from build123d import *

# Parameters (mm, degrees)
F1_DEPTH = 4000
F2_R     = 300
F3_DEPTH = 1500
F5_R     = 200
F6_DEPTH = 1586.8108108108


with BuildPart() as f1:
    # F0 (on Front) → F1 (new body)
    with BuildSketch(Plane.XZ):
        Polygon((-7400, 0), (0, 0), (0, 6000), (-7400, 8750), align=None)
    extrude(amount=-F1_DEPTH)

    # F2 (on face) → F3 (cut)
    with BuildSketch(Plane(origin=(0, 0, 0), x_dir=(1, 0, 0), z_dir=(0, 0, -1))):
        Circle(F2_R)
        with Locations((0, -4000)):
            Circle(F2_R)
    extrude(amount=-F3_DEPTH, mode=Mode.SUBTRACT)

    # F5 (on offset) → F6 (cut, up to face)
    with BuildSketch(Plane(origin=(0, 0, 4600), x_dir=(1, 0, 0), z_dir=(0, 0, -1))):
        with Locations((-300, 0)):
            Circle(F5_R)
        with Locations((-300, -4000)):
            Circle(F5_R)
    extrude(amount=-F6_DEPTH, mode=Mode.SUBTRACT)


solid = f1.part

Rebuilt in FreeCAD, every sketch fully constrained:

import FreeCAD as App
import Part
import Sketcher
from FreeCAD import Vector
Q = App.Units.Quantity

doc = App.newDocument("Part")
body = doc.addObject("PartDesign::Body", "Body")

# Sketch on XZ plane
sketch1 = body.newObject("Sketcher::SketchObject", "Sketch")
sketch1.AttachmentSupport = (doc.getObject("XZ_Plane"), [""])
sketch1.MapMode = "FlatFace"
sketch1.addGeometry([
    Part.LineSegment(Vector(-7400, 0, 0), Vector(0, 0, 0)),
    Part.LineSegment(Vector(0, 0, 0), Vector(0, 6000, 0)),
    Part.LineSegment(Vector(0, 6000, 0), Vector(-7400, 8750, 0)),
    Part.LineSegment(Vector(-7400, 8750, 0), Vector(-7400, 0, 0)),
], False)
sketch1.addConstraint([
    Sketcher.Constraint("Coincident", 0, 2, 1, 1),
    Sketcher.Constraint("Coincident", 1, 2, 2, 1),
    Sketcher.Constraint("Coincident", 2, 2, 3, 1),
    Sketcher.Constraint("Coincident", 3, 2, 0, 1),
    Sketcher.Constraint("Horizontal", 0),
    Sketcher.Constraint("Vertical", 1),
    Sketcher.Constraint("Vertical", 3),
    Sketcher.Constraint("Coincident", 0, 2, -1, 1),
    Sketcher.Constraint("DistanceX", 0, 1, 0, 2, Q("7400 mm")),
    Sketcher.Constraint("DistanceY", 1, 1, 1, 2, Q("6000 mm")),
    Sketcher.Constraint("DistanceY", 3, 2, 3, 1, Q("8750 mm")),
])
pad1 = body.newObject("PartDesign::Pad", "Pad")
pad1.Profile = sketch1
pad1.Length = 4000
pad1.Reversed = True

# Sketch on XY plane
sketch2 = body.newObject("Sketcher::SketchObject", "Sketch001")
sketch2.AttachmentSupport = (doc.getObject("XY_Plane"), [""])
sketch2.MapMode = "FlatFace"
sketch2.addGeometry([
    Part.Circle(Vector(0, 0, 0), Vector(0, 0, 1), 300),
    Part.Circle(Vector(0, 4000, 0), Vector(0, 0, 1), 300),
], False)
sketch2.addConstraint([
    Sketcher.Constraint("Coincident", 0, 3, -1, 1),
    Sketcher.Constraint("Equal", 0, 1),
    Sketcher.Constraint("PointOnObject", 1, 3, -2),
    Sketcher.Constraint("Diameter", 0, Q("600 mm")),
    Sketcher.Constraint("DistanceY", -1, 1, 1, 3, Q("4000 mm")),
])
pocket1 = body.newObject("PartDesign::Pocket", "Pocket")
pocket1.Profile = sketch2
pocket1.Length = 1500
pocket1.Reversed = True

# Sketch on XY plane
sketch3 = body.newObject("Sketcher::SketchObject", "Sketch002")
sketch3.AttachmentSupport = (doc.getObject("XY_Plane"), [""])
sketch3.MapMode = "FlatFace"
sketch3.AttachmentOffset = App.Placement(Vector(0, 0, 4600), App.Rotation())
sketch3.addGeometry([
    Part.Circle(Vector(-300, 0, 0), Vector(0, 0, 1), 200),
    Part.Circle(Vector(-300, 4000, 0), Vector(0, 0, 1), 200),
], False)
sketch3.addConstraint([
    Sketcher.Constraint("Equal", 0, 1),
    Sketcher.Constraint("PointOnObject", 0, 3, -1),
    Sketcher.Constraint("Vertical", 0, 3, 1, 3),
    Sketcher.Constraint("Diameter", 0, Q("400 mm")),
    Sketcher.Constraint("DistanceX", 0, 3, -1, 1, Q("300 mm")),
    Sketcher.Constraint("DistanceY", -1, 1, 1, 3, Q("4000 mm")),
])
pocket2 = body.newObject("PartDesign::Pocket", "Pocket001")
pocket2.Profile = sketch3
pocket2.Length = 1586.810811
pocket2.Reversed = True

doc.recompute()
